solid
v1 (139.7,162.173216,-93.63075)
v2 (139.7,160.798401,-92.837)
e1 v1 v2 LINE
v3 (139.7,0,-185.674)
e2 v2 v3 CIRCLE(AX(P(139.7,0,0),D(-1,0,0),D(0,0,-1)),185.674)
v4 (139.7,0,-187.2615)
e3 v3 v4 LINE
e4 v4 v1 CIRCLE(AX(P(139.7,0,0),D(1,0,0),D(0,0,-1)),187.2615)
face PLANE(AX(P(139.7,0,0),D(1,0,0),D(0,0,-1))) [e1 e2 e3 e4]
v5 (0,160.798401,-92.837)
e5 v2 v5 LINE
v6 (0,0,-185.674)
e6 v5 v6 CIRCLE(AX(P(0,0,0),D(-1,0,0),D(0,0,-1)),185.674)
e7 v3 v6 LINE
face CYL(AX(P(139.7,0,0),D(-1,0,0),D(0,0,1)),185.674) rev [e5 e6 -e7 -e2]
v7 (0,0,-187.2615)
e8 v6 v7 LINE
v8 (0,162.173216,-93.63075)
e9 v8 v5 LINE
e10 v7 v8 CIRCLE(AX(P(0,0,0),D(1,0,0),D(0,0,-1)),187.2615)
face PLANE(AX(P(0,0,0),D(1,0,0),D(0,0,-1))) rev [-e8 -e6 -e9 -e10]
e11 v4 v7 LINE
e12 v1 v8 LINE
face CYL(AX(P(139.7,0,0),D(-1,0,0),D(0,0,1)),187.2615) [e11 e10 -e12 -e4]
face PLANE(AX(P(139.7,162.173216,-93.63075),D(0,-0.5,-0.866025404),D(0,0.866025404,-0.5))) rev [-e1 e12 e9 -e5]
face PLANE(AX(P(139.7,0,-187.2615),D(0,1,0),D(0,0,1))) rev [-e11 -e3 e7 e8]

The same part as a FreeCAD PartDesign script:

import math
import FreeCAD as App
import Part
import Sketcher

V = App.Vector
Q = App.Units.Quantity

doc = App.newDocument("Part")
params = doc.addObject("Spreadsheet::Sheet", "Params")
for row, (alias, value) in enumerate([
    ("sketch1_radius", "7.31 in"),
    ("pad1_length", "5.5 in"),
], start=1):
    params.set(f"A{row}", alias)
    params.set(f"B{row}", "=" + value)
    params.setAlias(f"B{row}", alias)

body = doc.addObject("PartDesign::Body", "Body")

# Sketch on YZ plane
sketch1 = doc.addObject("Sketcher::SketchObject", "Sketch")
body.addObject(sketch1)
sketch1.AttachmentSupport = (doc.YZ_Plane, [""])
sketch1.MapMode = "FlatFace"
sketch1.addGeometry(Part.LineSegment(V(162.2, -93.6, 0), V(160.8, -92.8, 0)), False)
sketch1.addGeometry(Part.ArcOfCircle(Part.Circle(V(0, 0, 0), V(0, 0, 1), 185.7), math.radians(-90), math.radians(-30)), False)
sketch1.addGeometry(Part.LineSegment(V(0, -185.7, 0), V(0, -187.3, 0)), False)
sketch1.addGeometry(Part.ArcOfCircle(Part.Circle(V(0, 0, 0), V(0, 0, 1), 187.3), math.radians(-90), math.radians(-30)), False)
sketch1.addConstraint(Sketcher.Constraint("Coincident", 0, 2, 1, 2))
sketch1.addConstraint(Sketcher.Constraint("Coincident", 1, 1, 2, 1))
sketch1.addConstraint(Sketcher.Constraint("Coincident", 2, 2, 3, 1))
sketch1.addConstraint(Sketcher.Constraint("Coincident", 3, 2, 0, 1))
sketch1.addConstraint(Sketcher.Constraint("Vertical", 2))
sketch1.addConstraint(Sketcher.Constraint("Coincident", 1, 3, -1, 1))
sketch1.addConstraint(Sketcher.Constraint("Coincident", 3, 3, -1, 1))
sketch1.addConstraint(Sketcher.Constraint("PointOnObject", 1, 1, -2))
sketch1.addConstraint(Sketcher.Constraint("Radius", 1, Q("7.31 in")))
sketch1.addConstraint(Sketcher.Constraint("Angle", 0, Q("150 deg")))
sketch1.addConstraint(Sketcher.Constraint("Radius", 3, Q("7.3725 in")))
sketch1.addConstraint(Sketcher.Constraint("DistanceY", 0, 2, -1, 1, Q("3.655 in")))
sketch1.setExpression("Constraints[8]", "Params.sketch1_radius")
pad1 = doc.addObject("PartDesign::Pad", "Pad")
body.addObject(pad1)
pad1.Profile = sketch1
pad1.setExpression("Length", "Params.pad1_length")

doc.recompute()
